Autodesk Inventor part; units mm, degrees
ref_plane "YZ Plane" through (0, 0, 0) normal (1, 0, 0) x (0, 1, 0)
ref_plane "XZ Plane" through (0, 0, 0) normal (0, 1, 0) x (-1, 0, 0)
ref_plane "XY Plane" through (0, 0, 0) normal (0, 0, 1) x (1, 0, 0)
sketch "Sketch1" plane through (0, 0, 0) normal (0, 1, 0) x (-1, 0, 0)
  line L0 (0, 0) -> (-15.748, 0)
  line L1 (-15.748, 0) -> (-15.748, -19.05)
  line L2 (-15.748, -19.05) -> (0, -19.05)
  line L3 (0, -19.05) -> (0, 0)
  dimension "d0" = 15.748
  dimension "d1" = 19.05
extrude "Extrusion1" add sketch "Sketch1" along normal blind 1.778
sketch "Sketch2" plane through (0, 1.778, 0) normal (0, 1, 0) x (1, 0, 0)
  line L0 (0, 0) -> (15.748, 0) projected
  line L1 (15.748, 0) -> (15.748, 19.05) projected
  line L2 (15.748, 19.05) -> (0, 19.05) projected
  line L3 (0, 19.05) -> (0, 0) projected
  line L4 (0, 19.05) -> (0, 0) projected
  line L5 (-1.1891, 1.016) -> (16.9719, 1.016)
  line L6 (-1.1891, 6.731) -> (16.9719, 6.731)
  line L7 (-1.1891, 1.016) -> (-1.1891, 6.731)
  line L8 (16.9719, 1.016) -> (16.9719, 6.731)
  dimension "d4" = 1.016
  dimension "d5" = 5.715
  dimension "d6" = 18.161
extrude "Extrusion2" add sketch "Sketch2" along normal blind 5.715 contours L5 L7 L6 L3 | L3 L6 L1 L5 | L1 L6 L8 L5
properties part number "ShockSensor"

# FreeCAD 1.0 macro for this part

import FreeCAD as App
import Part
import Sketcher
Q = App.Units.Quantity


def add_polygon(sketch, points):
    """Adds a closed chain of lines whose ends are joined by coincident constraints."""
    first, n = sketch.GeometryCount, len(points)
    for a, b in zip(points, points[1:] + points[:1]):
        sketch.addGeometry(Part.LineSegment(App.Vector(*a, 0), App.Vector(*b, 0)), False)
    for i in range(n):
        sketch.addConstraint(Sketcher.Constraint("Coincident", first + i, 2, first + (i + 1) % n, 1))

doc = App.newDocument("Part")
params = doc.addObject("Spreadsheet::Sheet", "Params")
for row, (alias, value) in enumerate([
    ("sketch1_width", "0.62 in"),
    ("sketch1_height", "0.75 in"),
    ("pad1_length", "0.07 in"),
    ("sketch2_width", "0.715 in"),
    ("sketch2_height", "0.225 in"),
    ("pad2_length", "0.225 in"),
], start=1):
    params.set(f"A{row}", alias)
    params.set(f"B{row}", "=" + value)
    params.setAlias(f"B{row}", alias)

body = doc.addObject("PartDesign::Body", "Body")

# Sketch on XZ plane
sketch1 = body.newObject("Sketcher::SketchObject", "Sketch")
sketch1.AttachmentSupport = (doc.getObject("XZ_Plane"), [""])
sketch1.MapMode = "FlatFace"
add_polygon(sketch1, [(0, -19), (0, 0), (16, 0), (16, -19)])  # lines 0-3
sketch1.addConstraint(Sketcher.Constraint("Vertical", 0))
sketch1.addConstraint(Sketcher.Constraint("Horizontal", 1))
sketch1.addConstraint(Sketcher.Constraint("Vertical", 2))
sketch1.addConstraint(Sketcher.Constraint("Horizontal", 3))
sketch1.addConstraint(Sketcher.Constraint("Coincident", 0, 2, -1, 1))
sketch1.addConstraint(Sketcher.Constraint("DistanceX", 1, 1, 1, 2, Q("0.62 in")))
sketch1.addConstraint(Sketcher.Constraint("DistanceY", 0, 1, 0, 2, Q("0.75 in")))
sketch1.setExpression("Constraints[9]", "Params.sketch1_width")
sketch1.setExpression("Constraints[10]", "Params.sketch1_height")
pad1 = body.newObject("PartDesign::Pad", "Pad")
pad1.Profile = sketch1
pad1.setExpression("Length", "Params.pad1_length")
pad1.Reversed = True

# Sketch on XZ plane
sketch2 = body.newObject("Sketcher::SketchObject", "Sketch001")
sketch2.AttachmentSupport = (doc.getObject("XZ_Plane"), [""])
sketch2.MapMode = "FlatFace"
sketch2.AttachmentOffset = App.Placement(App.Vector(0, 0, -0.07 * 25.4), App.Rotation())
add_polygon(sketch2, [(-1, -1), (17, -1), (17, -7), (-1, -7)])  # lines 0-3
sketch2.addConstraint(Sketcher.Constraint("Horizontal", 0))
sketch2.addConstraint(Sketcher.Constraint("Vertical", 1))
sketch2.addConstraint(Sketcher.Constraint("Horizontal", 2))
sketch2.addConstraint(Sketcher.Constraint("Vertical", 3))
sketch2.addConstraint(Sketcher.Constraint("DistanceX", 0, 1, 0, 2, Q("0.715 in")))
sketch2.addConstraint(Sketcher.Constraint("DistanceY", 1, 2, 1, 1, Q("0.225 in")))
sketch2.addConstraint(Sketcher.Constraint("DistanceY", 0, 2, -1, 1, Q("0.04 in")))
sketch2.addConstraint(Sketcher.Constraint("DistanceX", -1, 1, 0, 2, Q("0.668189 in")))
sketch2.setExpression("Constraints[8]", "Params.sketch2_width")
sketch2.setExpression("Constraints[9]", "Params.sketch2_height")
pad2 = body.newObject("PartDesign::Pad", "Pad001")
pad2.Profile = sketch2
pad2.setExpression("Length", "Params.pad2_length")
pad2.Reversed = True

doc.recompute()
